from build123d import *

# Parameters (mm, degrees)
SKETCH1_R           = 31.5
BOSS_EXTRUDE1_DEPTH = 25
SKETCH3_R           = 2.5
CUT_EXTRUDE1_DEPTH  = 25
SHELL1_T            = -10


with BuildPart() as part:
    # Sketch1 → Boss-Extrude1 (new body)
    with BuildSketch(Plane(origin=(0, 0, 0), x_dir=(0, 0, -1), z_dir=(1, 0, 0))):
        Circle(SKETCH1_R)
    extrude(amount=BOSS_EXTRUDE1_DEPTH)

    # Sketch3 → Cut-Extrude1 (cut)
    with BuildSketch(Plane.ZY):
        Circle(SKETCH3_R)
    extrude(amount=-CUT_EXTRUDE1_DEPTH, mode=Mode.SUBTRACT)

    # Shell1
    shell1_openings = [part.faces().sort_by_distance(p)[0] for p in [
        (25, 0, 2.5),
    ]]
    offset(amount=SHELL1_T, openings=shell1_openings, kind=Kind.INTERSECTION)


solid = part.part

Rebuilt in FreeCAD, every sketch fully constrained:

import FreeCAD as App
import Part
import Sketcher
Q = App.Units.Quantity


def faces_at(feature, points):
    """Names of the faces that lie closest to the given points."""
    faces = feature.Shape.Faces
    near = lambda p: min(range(len(faces)), key=lambda i: faces[i].distToShape(Part.Vertex(*p))[0])
    return sorted({f"Face{near(p) + 1}" for p in points})

doc = App.newDocument("Part")
params = doc.addObject("Spreadsheet::Sheet", "Params")
for row, (alias, value) in enumerate([
    ("sketch1_diameter", "63 mm"),
    ("pad1_length", "25 mm"),
    ("sketch2_diameter", "5 mm"),
    ("pocket1_length", "25 mm"),
    ("thickness_wall", "10 mm"),
], start=1):
    params.set(f"A{row}", alias)
    params.set(f"B{row}", "=" + value)
    params.setAlias(f"B{row}", alias)

body = doc.addObject("PartDesign::Body", "Body")

# Sketch on YZ plane
sketch1 = body.newObject("Sketcher::SketchObject", "Sketch")
sketch1.AttachmentSupport = (doc.getObject("YZ_Plane"), [""])
sketch1.MapMode = "FlatFace"
sketch1.addGeometry(Part.Circle(App.Vector(0, 0, 0), App.Vector(0, 0, 1), 32), False)
sketch1.addConstraint([
    Sketcher.Constraint("Coincident", 0, 3, -1, 1),
    Sketcher.Constraint("Diameter", 0, Q("63 mm")),
])
sketch1.setExpression("Constraints[1]", "Params.sketch1_diameter")
pad1 = body.newObject("PartDesign::Pad", "Pad")
pad1.Profile = sketch1
pad1.setExpression("Length", "Params.pad1_length")

# Sketch on YZ plane
sketch2 = body.newObject("Sketcher::SketchObject", "Sketch001")
sketch2.AttachmentSupport = (doc.getObject("YZ_Plane"), [""])
sketch2.MapMode = "FlatFace"
sketch2.addGeometry(Part.Circle(App.Vector(0, 0, 0), App.Vector(0, 0, 1), 2.5), False)
sketch2.addConstraint([
    Sketcher.Constraint("Coincident", 0, 3, -1, 1),
    Sketcher.Constraint("Diameter", 0, Q("5 mm")),
])
sketch2.setExpression("Constraints[1]", "Params.sketch2_diameter")
pocket1 = body.newObject("PartDesign::Pocket", "Pocket")
pocket1.Profile = sketch2
pocket1.setExpression("Length", "Params.pocket1_length")
pocket1.Reversed = True
doc.recompute()

thickness = body.newObject("PartDesign::Thickness", "Thickness")
thickness.Base = (pocket1, faces_at(pocket1, [(25, -12.6, 12.6)]))
thickness.setExpression("Value", "Params.thickness_wall")
thickness.Reversed = True
thickness.Join = "Intersection"

doc.recompute()
